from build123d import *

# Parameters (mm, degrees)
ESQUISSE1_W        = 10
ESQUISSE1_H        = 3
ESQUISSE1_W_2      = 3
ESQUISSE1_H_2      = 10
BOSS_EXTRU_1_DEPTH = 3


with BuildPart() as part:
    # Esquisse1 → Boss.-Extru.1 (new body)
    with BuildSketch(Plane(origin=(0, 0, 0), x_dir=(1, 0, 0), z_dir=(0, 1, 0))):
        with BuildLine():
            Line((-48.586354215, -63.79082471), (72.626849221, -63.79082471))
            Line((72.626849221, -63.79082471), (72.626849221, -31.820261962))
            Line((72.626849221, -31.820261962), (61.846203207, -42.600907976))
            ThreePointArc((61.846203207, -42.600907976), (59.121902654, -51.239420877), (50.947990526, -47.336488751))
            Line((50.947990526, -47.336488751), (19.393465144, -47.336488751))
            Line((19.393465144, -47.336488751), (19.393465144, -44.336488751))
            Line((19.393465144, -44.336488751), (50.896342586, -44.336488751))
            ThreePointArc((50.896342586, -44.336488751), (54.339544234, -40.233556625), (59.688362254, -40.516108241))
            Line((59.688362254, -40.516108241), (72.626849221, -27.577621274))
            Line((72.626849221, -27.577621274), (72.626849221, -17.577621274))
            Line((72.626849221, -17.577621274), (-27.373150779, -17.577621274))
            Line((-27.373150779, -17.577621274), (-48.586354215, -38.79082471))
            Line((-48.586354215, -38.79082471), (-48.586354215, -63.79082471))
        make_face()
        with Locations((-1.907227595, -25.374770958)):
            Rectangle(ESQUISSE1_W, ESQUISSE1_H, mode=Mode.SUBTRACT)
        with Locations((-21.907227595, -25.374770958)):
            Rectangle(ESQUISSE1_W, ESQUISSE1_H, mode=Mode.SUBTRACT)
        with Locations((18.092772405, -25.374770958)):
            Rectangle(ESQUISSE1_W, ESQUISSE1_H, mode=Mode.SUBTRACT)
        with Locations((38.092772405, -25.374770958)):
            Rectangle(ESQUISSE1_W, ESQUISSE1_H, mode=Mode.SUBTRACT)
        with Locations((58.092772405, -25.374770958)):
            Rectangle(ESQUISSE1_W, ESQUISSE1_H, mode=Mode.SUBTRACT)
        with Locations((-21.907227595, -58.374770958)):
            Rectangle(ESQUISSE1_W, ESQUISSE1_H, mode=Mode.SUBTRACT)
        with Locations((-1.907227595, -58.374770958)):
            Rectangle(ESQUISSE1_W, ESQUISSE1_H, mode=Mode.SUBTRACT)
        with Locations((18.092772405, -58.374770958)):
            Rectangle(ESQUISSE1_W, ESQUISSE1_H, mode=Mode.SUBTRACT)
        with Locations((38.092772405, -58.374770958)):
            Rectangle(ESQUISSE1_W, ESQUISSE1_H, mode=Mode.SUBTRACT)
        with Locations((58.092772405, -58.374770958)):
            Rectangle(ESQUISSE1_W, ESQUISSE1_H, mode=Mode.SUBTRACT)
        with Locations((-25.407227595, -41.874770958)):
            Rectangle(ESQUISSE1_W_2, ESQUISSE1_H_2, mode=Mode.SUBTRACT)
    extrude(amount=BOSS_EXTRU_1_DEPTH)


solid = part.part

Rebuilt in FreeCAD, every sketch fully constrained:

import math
import FreeCAD as App
import Part
import Sketcher
Q = App.Units.Quantity

doc = App.newDocument("Part")
body = doc.addObject("PartDesign::Body", "Body")

sketch1 = doc.addObject("Sketcher::SketchObject", "Sketch")
body.addObject(sketch1)
sketch1.AttachmentSupport = (doc.XZ_Plane, [""])
sketch1.MapMode = "FlatFace"
sketch1.addGeometry([
    Part.LineSegment(App.Vector(-48.6, 63.8, 0), App.Vector(72.6, 63.8, 0)),
    Part.LineSegment(App.Vector(72.6, 63.8, 0), App.Vector(72.6, 31.8, 0)),
    Part.LineSegment(App.Vector(72.6, 31.8, 0), App.Vector(61.8, 42.6, 0)),
    Part.ArcOfCircle(Part.Circle(App.Vector(56.7, 45.7, 0), App.Vector(0, 0, 1), 6), math.radians(-32), math.radians(165)),
    Part.LineSegment(App.Vector(50.9, 47.3, 0), App.Vector(19.4, 47.3, 0)),
    Part.LineSegment(App.Vector(19.4, 47.3, 0), App.Vector(19.4, 44.3, 0)),
    Part.LineSegment(App.Vector(19.4, 44.3, 0), App.Vector(50.9, 44.3, 0)),
    Part.ArcOfCircle(Part.Circle(App.Vector(56.7, 45.7, 0), App.Vector(0, 0, 1), 6), math.radians(-167), math.radians(-60)),
    Part.LineSegment(App.Vector(59.7, 40.5, 0), App.Vector(72.6, 27.6, 0)),
    Part.LineSegment(App.Vector(72.6, 27.6, 0), App.Vector(72.6, 17.6, 0)),
    Part.LineSegment(App.Vector(72.6, 17.6, 0), App.Vector(-27.4, 17.6, 0)),
    Part.LineSegment(App.Vector(-27.4, 17.6, 0), App.Vector(-48.6, 38.8, 0)),
    Part.LineSegment(App.Vector(-48.6, 38.8, 0), App.Vector(-48.6, 63.8, 0)),
    Part.LineSegment(App.Vector(-16.9, 59.9, 0), App.Vector(-26.9, 59.9, 0)),
    Part.LineSegment(App.Vector(-26.9, 59.9, 0), App.Vector(-26.9, 56.9, 0)),
    Part.LineSegment(App.Vector(-26.9, 56.9, 0), App.Vector(-16.9, 56.9, 0)),
    Part.LineSegment(App.Vector(-16.9, 56.9, 0), App.Vector(-16.9, 59.9, 0)),
    Part.LineSegment(App.Vector(3.1, 59.9, 0), App.Vector(-6.9, 59.9, 0)),
    Part.LineSegment(App.Vector(-6.9, 59.9, 0), App.Vector(-6.9, 56.9, 0)),
    Part.LineSegment(App.Vector(-6.9, 56.9, 0), App.Vector(3.1, 56.9, 0)),
    Part.LineSegment(App.Vector(3.1, 56.9, 0), App.Vector(3.1, 59.9, 0)),
    Part.LineSegment(App.Vector(23.1, 59.9, 0), App.Vector(13.1, 59.9, 0)),
    Part.LineSegment(App.Vector(13.1, 59.9, 0), App.Vector(13.1, 56.9, 0)),
    Part.LineSegment(App.Vector(13.1, 56.9, 0), App.Vector(23.1, 56.9, 0)),
    Part.LineSegment(App.Vector(23.1, 56.9, 0), App.Vector(23.1, 59.9, 0)),
    Part.LineSegment(App.Vector(43.1, 59.9, 0), App.Vector(33.1, 59.9, 0)),
    Part.LineSegment(App.Vector(33.1, 59.9, 0), App.Vector(33.1, 56.9, 0)),
    Part.LineSegment(App.Vector(33.1, 56.9, 0), App.Vector(43.1, 56.9, 0)),
    Part.LineSegment(App.Vector(43.1, 56.9, 0), App.Vector(43.1, 59.9, 0)),
    Part.LineSegment(App.Vector(63.1, 59.9, 0), App.Vector(53.1, 59.9, 0)),
    Part.LineSegment(App.Vector(53.1, 59.9, 0), App.Vector(53.1, 56.9, 0)),
    Part.LineSegment(App.Vector(53.1, 56.9, 0), App.Vector(63.1, 56.9, 0)),
    Part.LineSegment(App.Vector(63.1, 56.9, 0), App.Vector(63.1, 59.9, 0)),
    Part.LineSegment(App.Vector(-23.9, 46.9, 0), App.Vector(-26.9, 46.9, 0)),
    Part.LineSegment(App.Vector(-26.9, 46.9, 0), App.Vector(-26.9, 36.9, 0)),
    Part.LineSegment(App.Vector(-26.9, 36.9, 0), App.Vector(-23.9, 36.9, 0)),
    Part.LineSegment(App.Vector(-23.9, 36.9, 0), App.Vector(-23.9, 46.9, 0)),
    Part.LineSegment(App.Vector(-16.9, 26.9, 0), App.Vector(-26.9, 26.9, 0)),
    Part.LineSegment(App.Vector(-26.9, 26.9, 0), App.Vector(-26.9, 23.9, 0)),
    Part.LineSegment(App.Vector(-26.9, 23.9, 0), App.Vector(-16.9, 23.9, 0)),
    Part.LineSegment(App.Vector(-16.9, 23.9, 0), App.Vector(-16.9, 26.9, 0)),
    Part.LineSegment(App.Vector(3.1, 26.9, 0), App.Vector(-6.9, 26.9, 0)),
    Part.LineSegment(App.Vector(-6.9, 26.9, 0), App.Vector(-6.9, 23.9, 0)),
    Part.LineSegment(App.Vector(-6.9, 23.9, 0), App.Vector(3.1, 23.9, 0)),
    Part.LineSegment(App.Vector(3.1, 23.9, 0), App.Vector(3.1, 26.9, 0)),
    Part.LineSegment(App.Vector(23.1, 26.9, 0), App.Vector(13.1, 26.9, 0)),
    Part.LineSegment(App.Vector(13.1, 26.9, 0), App.Vector(13.1, 23.9, 0)),
    Part.LineSegment(App.Vector(13.1, 23.9, 0), App.Vector(23.1, 23.9, 0)),
    Part.LineSegment(App.Vector(23.1, 23.9, 0), App.Vector(23.1, 26.9, 0)),
    Part.LineSegment(App.Vector(43.1, 26.9, 0), App.Vector(33.1, 26.9, 0)),
    Part.LineSegment(App.Vector(33.1, 26.9, 0), App.Vector(33.1, 23.9, 0)),
    Part.LineSegment(App.Vector(33.1, 23.9, 0), App.Vector(43.1, 23.9, 0)),
    Part.LineSegment(App.Vector(43.1, 23.9, 0), App.Vector(43.1, 26.9, 0)),
    Part.LineSegment(App.Vector(63.1, 26.9, 0), App.Vector(53.1, 26.9, 0)),
    Part.LineSegment(App.Vector(53.1, 26.9, 0), App.Vector(53.1, 23.9, 0)),
    Part.LineSegment(App.Vector(53.1, 23.9, 0), App.Vector(63.1, 23.9, 0)),
    Part.LineSegment(App.Vector(63.1, 23.9, 0), App.Vector(63.1, 26.9, 0)),
], False)
sketch1.addConstraint([
    Sketcher.Constraint("Coincident", 0, 2, 1, 1),
    Sketcher.Constraint("Coincident", 1, 2, 2, 1),
    Sketcher.Constraint("Coincident", 2, 2, 3, 1),
    Sketcher.Constraint("Coincident", 3, 2, 4, 1),
    Sketcher.Constraint("Coincident", 4, 2, 5, 1),
    Sketcher.Constraint("Coincident", 5, 2, 6, 1),
    Sketcher.Constraint("Coincident", 6, 2, 7, 1),
    Sketcher.Constraint("Coincident", 7, 2, 8, 1),
    Sketcher.Constraint("Coincident", 8, 2, 9, 1),
    Sketcher.Constraint("Coincident", 9, 2, 10, 1),
    Sketcher.Constraint("Coincident", 10, 2, 11, 1),
    Sketcher.Constraint("Coincident", 11, 2, 12, 1),
    Sketcher.Constraint("Coincident", 12, 2, 0, 1),
    Sketcher.Constraint("Coincident", 13, 2, 14, 1),
    Sketcher.Constraint("Coincident", 14, 2, 15, 1),
    Sketcher.Constraint("Coincident", 15, 2, 16, 1),
    Sketcher.Constraint("Coincident", 16, 2, 13, 1),
    Sketcher.Constraint("Coincident", 17, 2, 18, 1),
    Sketcher.Constraint("Coincident", 18, 2, 19, 1),
    Sketcher.Constraint("Coincident", 19, 2, 20, 1),
    Sketcher.Constraint("Coincident", 20, 2, 17, 1),
    Sketcher.Constraint("Coincident", 21, 2, 22, 1),
    Sketcher.Constraint("Coincident", 22, 2, 23, 1),
    Sketcher.Constraint("Coincident", 23, 2, 24, 1),
    Sketcher.Constraint("Coincident", 24, 2, 21, 1),
    Sketcher.Constraint("Coincident", 25, 2, 26, 1),
    Sketcher.Constraint("Coincident", 26, 2, 27, 1),
    Sketcher.Constraint("Coincident", 27, 2, 28, 1),
    Sketcher.Constraint("Coincident", 28, 2, 25, 1),
    Sketcher.Constraint("Coincident", 29, 2, 30, 1),
    Sketcher.Constraint("Coincident", 30, 2, 31, 1),
    Sketcher.Constraint("Coincident", 31, 2, 32, 1),
    Sketcher.Constraint("Coincident", 32, 2, 29, 1),
    Sketcher.Constraint("Coincident", 33, 2, 34, 1),
    Sketcher.Constraint("Coincident", 34, 2, 35, 1),
    Sketcher.Constraint("Coincident", 35, 2, 36, 1),
    Sketcher.Constraint("Coincident", 36, 2, 33, 1),
    Sketcher.Constraint("Coincident", 37, 2, 38, 1),
    Sketcher.Constraint("Coincident", 38, 2, 39, 1),
    Sketcher.Constraint("Coincident", 39, 2, 40, 1),
    Sketcher.Constraint("Coincident", 40, 2, 37, 1),
    Sketcher.Constraint("Coincident", 41, 2, 42, 1),
    Sketcher.Constraint("Coincident", 42, 2, 43, 1),
    Sketcher.Constraint("Coincident", 43, 2, 44, 1),
    Sketcher.Constraint("Coincident", 44, 2, 41, 1),
    Sketcher.Constraint("Coincident", 45, 2, 46, 1),
    Sketcher.Constraint("Coincident", 46, 2, 47, 1),
    Sketcher.Constraint("Coincident", 47, 2, 48, 1),
    Sketcher.Constraint("Coincident", 48, 2, 45, 1),
    Sketcher.Constraint("Coincident", 49, 2, 50, 1),
    Sketcher.Constraint("Coincident", 50, 2, 51, 1),
    Sketcher.Constraint("Coincident", 51, 2, 52, 1),
    Sketcher.Constraint("Coincident", 52, 2, 49, 1),
    Sketcher.Constraint("Coincident", 53, 2, 54, 1),
    Sketcher.Constraint("Coincident", 54, 2, 55, 1),
    Sketcher.Constraint("Coincident", 55, 2, 56, 1),
    Sketcher.Constraint("Coincident", 56, 2, 53, 1),
    Sketcher.Constraint("Horizontal", 0),
    Sketcher.Constraint("Vertical", 1),
    Sketcher.Constraint("Horizontal", 4),
    Sketcher.Constraint("Vertical", 5),
    Sketcher.Constraint("Horizontal", 6),
    Sketcher.Constraint("Vertical", 9),
    Sketcher.Constraint("Horizontal", 10),
    Sketcher.Constraint("Vertical", 12),
    Sketcher.Constraint("Horizontal", 13),
    Sketcher.Constraint("Vertical", 14),
    Sketcher.Constraint("Horizontal", 15),
    Sketcher.Constraint("Vertical", 16),
    Sketcher.Constraint("Horizontal", 17),
    Sketcher.Constraint("Vertical", 18),
    Sketcher.Constraint("Horizontal", 19),
    Sketcher.Constraint("Vertical", 20),
    Sketcher.Constraint("Horizontal", 21),
    Sketcher.Constraint("Vertical", 22),
    Sketcher.Constraint("Horizontal", 23),
    Sketcher.Constraint("Vertical", 24),
    Sketcher.Constraint("Horizontal", 25),
    Sketcher.Constraint("Vertical", 26),
    Sketcher.Constraint("Horizontal", 27),
    Sketcher.Constraint("Vertical", 28),
    Sketcher.Constraint("Horizontal", 29),
    Sketcher.Constraint("Vertical", 30),
    Sketcher.Constraint("Horizontal", 31),
    Sketcher.Constraint("Vertical", 32),
    Sketcher.Constraint("Horizontal", 33),
    Sketcher.Constraint("Vertical", 34),
    Sketcher.Constraint("Horizontal", 35),
    Sketcher.Constraint("Vertical", 36),
    Sketcher.Constraint("Horizontal", 37),
    Sketcher.Constraint("Vertical", 38),
    Sketcher.Constraint("Horizontal", 39),
    Sketcher.Constraint("Vertical", 40),
    Sketcher.Constraint("Horizontal", 41),
    Sketcher.Constraint("Vertical", 42),
    Sketcher.Constraint("Horizontal", 43),
    Sketcher.Constraint("Vertical", 44),
    Sketcher.Constraint("Horizontal", 45),
    Sketcher.Constraint("Vertical", 46),
    Sketcher.Constraint("Horizontal", 47),
    Sketcher.Constraint("Vertical", 48),
    Sketcher.Constraint("Horizontal", 49),
    Sketcher.Constraint("Vertical", 50),
    Sketcher.Constraint("Horizontal", 51),
    Sketcher.Constraint("Vertical", 52),
    Sketcher.Constraint("Horizontal", 53),
    Sketcher.Constraint("Vertical", 54),
    Sketcher.Constraint("Horizontal", 55),
    Sketcher.Constraint("Vertical", 56),
    Sketcher.Constraint("Coincident", 7, 3, 3, 3),
    Sketcher.Constraint("Equal", 3, 7),
    Sketcher.Constraint("Parallel", 2, 8),
    Sketcher.Constraint("Parallel", 8, 11),
    Sketcher.Constraint("Horizontal", 16, 2, 17, 2),
    Sketcher.Constraint("Horizontal", 15, 2, 18, 2),
    Sketcher.Constraint("Horizontal", 20, 2, 21, 2),
    Sketcher.Constraint("Horizontal", 19, 2, 22, 2),
    Sketcher.Constraint("Horizontal", 24, 2, 25, 2),
    Sketcher.Constraint("Horizontal", 23, 2, 26, 2),
    Sketcher.Constraint("Horizontal", 28, 2, 29, 2),
    Sketcher.Constraint("Horizontal", 27, 2, 30, 2),
    Sketcher.Constraint("Horizontal", 40, 2, 41, 2),
    Sketcher.Constraint("Horizontal", 39, 2, 42, 2),
    Sketcher.Constraint("Horizontal", 44, 2, 45, 2),
    Sketcher.Constraint("Horizontal", 43, 2, 46, 2),
    Sketcher.Constraint("Horizontal", 48, 2, 49, 2),
    Sketcher.Constraint("Horizontal", 47, 2, 50, 2),
    Sketcher.Constraint("Horizontal", 52, 2, 53, 2),
    Sketcher.Constraint("Horizontal", 51, 2, 54, 2),
    Sketcher.Constraint("Vertical", 1, 2, 8, 2),
    Sketcher.Constraint("Vertical", 14, 2, 33, 2),
    Sketcher.Constraint("Vertical", 34, 2, 37, 2),
    Sketcher.Constraint("Vertical", 16, 2, 39, 2),
    Sketcher.Constraint("Vertical", 18, 2, 41, 2),
    Sketcher.Constraint("Vertical", 20, 2, 43, 2),
    Sketcher.Constraint("Vertical", 22, 2, 45, 2),
    Sketcher.Constraint("Vertical", 24, 2, 47, 2),
    Sketcher.Constraint("Vertical", 26, 2, 49, 2),
    Sketcher.Constraint("Vertical", 28, 2, 51, 2),
    Sketcher.Constraint("Vertical", 30, 2, 53, 2),
    Sketcher.Constraint("Vertical", 32, 2, 55, 2),
    Sketcher.Constraint("Equal", 15, 17),
    Sketcher.Constraint("Equal", 19, 21),
    Sketcher.Constraint("Equal", 23, 25),
    Sketcher.Constraint("Equal", 27, 29),
    Sketcher.Constraint("Equal", 35, 5),
    Sketcher.Constraint("Equal", 55, 9),
    Sketcher.Constraint("Equal", 5, 14),
    Sketcher.Constraint("Equal", 9, 34),
    Sketcher.Constraint("Equal", 32, 38),
    Sketcher.Constraint("Radius", 3, Q("6 mm")),
    Sketcher.Constraint("DistanceX", 10, 2, 10, 1, Q("100 mm")),
    Sketcher.Constraint("DistanceX", 13, 2, 13, 1, Q("10 mm")),
    Sketcher.Constraint("DistanceX", 33, 2, 33, 1, Q("3 mm")),
    Sketcher.Constraint("DistanceY", 12, 1, 12, 2, Q("25 mm")),
    Sketcher.Constraint("Angle", 2, Q("135 deg")),
    Sketcher.Constraint("Distance", 11, Q("30 mm")),
    Sketcher.Constraint("DistanceX", 16, 2, 17, 2, Q("10 mm")),
    Sketcher.Constraint("DistanceX", 20, 2, 21, 2, Q("10 mm")),
    Sketcher.Constraint("DistanceX", 24, 2, 25, 2, Q("10 mm")),
    Sketcher.Constraint("DistanceX", 28, 2, 29, 2, Q("10 mm")),
    Sketcher.Constraint("DistanceY", 33, 2, 14, 2, Q("10 mm")),
    Sketcher.Constraint("DistanceY", 37, 2, 34, 2, Q("10 mm")),
    Sketcher.Constraint("DistanceY", 3, 3, 3, 2, Q("1.6 mm")),
    Sketcher.Constraint("DistanceY", 7, 2, 2, 2, Q("2.0848 mm")),
    Sketcher.Constraint("DistanceX", 4, 2, 4, 1, Q("31.554525 mm")),
    Sketcher.Constraint("DistanceY", 1, 2, 1, 1, Q("31.970563 mm")),
    Sketcher.Constraint("DistanceY", -1, 1, 3, 3, Q("45.736489 mm")),
    Sketcher.Constraint("DistanceX", -1, 1, 0, 2, Q("72.626849 mm")),
    Sketcher.Constraint("DistanceY", -1, 1, 1, 2, Q("31.820262 mm")),
    Sketcher.Constraint("DistanceY", -1, 1, 13, 2, Q("59.874771 mm")),
    Sketcher.Constraint("DistanceX", 27, 2, 3, 2, Q("7.855218 mm")),
])
pad1 = doc.addObject("PartDesign::Pad", "Pad")
body.addObject(pad1)
pad1.Profile = sketch1
pad1.Length = 3
pad1.Reversed = True

doc.recompute()
